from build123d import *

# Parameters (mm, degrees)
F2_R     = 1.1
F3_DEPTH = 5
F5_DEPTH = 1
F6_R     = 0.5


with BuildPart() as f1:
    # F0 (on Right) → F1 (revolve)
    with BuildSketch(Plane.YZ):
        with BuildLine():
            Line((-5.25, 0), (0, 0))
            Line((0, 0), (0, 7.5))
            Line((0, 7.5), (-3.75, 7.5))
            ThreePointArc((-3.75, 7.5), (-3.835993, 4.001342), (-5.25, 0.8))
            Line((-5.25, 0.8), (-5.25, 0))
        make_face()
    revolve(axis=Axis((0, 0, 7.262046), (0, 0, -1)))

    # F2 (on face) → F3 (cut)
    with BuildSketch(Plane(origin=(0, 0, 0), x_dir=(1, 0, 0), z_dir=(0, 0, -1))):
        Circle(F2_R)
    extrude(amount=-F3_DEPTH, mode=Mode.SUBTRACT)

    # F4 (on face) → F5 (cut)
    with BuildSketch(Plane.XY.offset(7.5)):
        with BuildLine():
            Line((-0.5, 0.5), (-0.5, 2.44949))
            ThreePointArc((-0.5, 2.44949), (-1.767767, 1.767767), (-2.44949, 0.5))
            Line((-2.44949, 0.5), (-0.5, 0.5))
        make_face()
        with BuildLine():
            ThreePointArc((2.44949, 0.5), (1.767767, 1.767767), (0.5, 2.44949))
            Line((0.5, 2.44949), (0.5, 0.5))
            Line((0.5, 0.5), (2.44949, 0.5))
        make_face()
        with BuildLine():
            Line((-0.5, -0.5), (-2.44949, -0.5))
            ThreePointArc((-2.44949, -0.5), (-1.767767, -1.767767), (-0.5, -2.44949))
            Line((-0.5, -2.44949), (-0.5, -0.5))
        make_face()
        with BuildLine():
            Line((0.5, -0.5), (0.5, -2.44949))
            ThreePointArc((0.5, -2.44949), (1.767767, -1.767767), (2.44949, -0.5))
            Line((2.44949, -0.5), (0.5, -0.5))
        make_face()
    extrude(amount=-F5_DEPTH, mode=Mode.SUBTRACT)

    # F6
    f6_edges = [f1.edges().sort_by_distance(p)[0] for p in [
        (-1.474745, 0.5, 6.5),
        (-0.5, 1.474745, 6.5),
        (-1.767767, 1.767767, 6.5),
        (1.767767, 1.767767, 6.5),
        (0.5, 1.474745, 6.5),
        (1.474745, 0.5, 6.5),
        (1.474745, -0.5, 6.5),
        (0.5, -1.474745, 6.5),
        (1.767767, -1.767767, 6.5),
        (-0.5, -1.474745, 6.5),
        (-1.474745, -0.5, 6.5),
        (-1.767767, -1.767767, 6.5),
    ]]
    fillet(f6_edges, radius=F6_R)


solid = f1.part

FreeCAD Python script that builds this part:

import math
import FreeCAD as App
import Part
import Sketcher


def edges_at(feature, points):
    """Names of the edges that pass closest to the given points."""
    edges = feature.Shape.Edges
    near = lambda p: min(range(len(edges)), key=lambda i: edges[i].distToShape(Part.Vertex(*p))[0])
    return sorted({f"Edge{near(p) + 1}" for p in points})

doc = App.newDocument("Part")
params = doc.addObject("Spreadsheet::Sheet", "Params")
for row, (alias, value) in enumerate([
    ("sketch1_height", "7.5 mm"),
    ("sketch1_height2", "0.8 mm"),
    ("sketch1_width", "5.25 mm"),
    ("sketch1_width2", "3.75 mm"),
    ("revolution_angle", "360 deg"),
    ("sketch2_diameter", "2.2 mm"),
    ("pocket1_length", "5 mm"),
    ("sketch3_radius", "2.500001 mm"),
    ("pocket2_length", "1 mm"),
    ("fillet_radius", "0.5 mm"),
], start=1):
    params.set(f"A{row}", alias)
    params.set(f"B{row}", "=" + value)
    params.setAlias(f"B{row}", alias)

body = doc.addObject("PartDesign::Body", "Body")

sketch1 = body.newObject("Sketcher::SketchObject", "Sketch")
sketch1.AttachmentSupport = (doc.getObject("YZ_Plane"), [""])
sketch1.MapMode = "FlatFace"
sketch1.addGeometry([
    Part.LineSegment(App.Vector(-5.2, 0, 0), App.Vector(0, 0, 0)),
    Part.LineSegment(App.Vector(0, 0, 0), App.Vector(0, 7.5, 0)),
    Part.LineSegment(App.Vector(0, 7.5, 0), App.Vector(-3.8, 7.5, 0)),
    Part.ArcOfCircle(Part.Circle(App.Vector(-12.6, 6, 0), App.Vector(0, 0, 1), 9), math.radians(-35), math.radians(10)),
    Part.LineSegment(App.Vector(-5.2, 0.8, 0), App.Vector(-5.2, 0, 0)),
], False)
sketch1.addConstraint([
    Sketcher.Constraint("Coincident", 0, 2, 1, 1),
    Sketcher.Constraint("Coincident", 1, 2, 2, 1),
    Sketcher.Constraint("Coincident", 2, 2, 3, 2),
    Sketcher.Constraint("Coincident", 3, 1, 4, 1),
    Sketcher.Constraint("Coincident", 4, 2, 0, 1),
    Sketcher.Constraint("Horizontal", 0),
    Sketcher.Constraint("Vertical", 1),
    Sketcher.Constraint("Horizontal", 2),
    Sketcher.Constraint("Vertical", 4),
    Sketcher.Constraint("Coincident", 0, 2, -1, 1),
    Sketcher.Constraint("DistanceY", 1, 1, 1, 2, 7.5),
    Sketcher.Constraint("DistanceY", 4, 2, 4, 1, 0.8),
    Sketcher.Constraint("DistanceX", 0, 1, 0, 2, 5.25),
    Sketcher.Constraint("DistanceX", 2, 2, 2, 1, 3.75),
    Sketcher.Constraint("Radius", 3, 9.000005),
])
sketch1.setExpression("Constraints[10]", "Params.sketch1_height")
sketch1.setExpression("Constraints[11]", "Params.sketch1_height2")
sketch1.setExpression("Constraints[12]", "Params.sketch1_width")
sketch1.setExpression("Constraints[13]", "Params.sketch1_width2")
revolution = body.newObject("PartDesign::Revolution", "Revolution")
revolution.Profile = sketch1
revolution.ReferenceAxis = (sketch1, ["V_Axis"])
revolution.setExpression("Angle", "Params.revolution_angle")

sketch2 = body.newObject("Sketcher::SketchObject", "Sketch001")
sketch2.AttachmentSupport = (doc.getObject("XY_Plane"), [""])
sketch2.MapMode = "FlatFace"
sketch2.addGeometry(Part.Circle(App.Vector(0, 0, 0), App.Vector(0, 0, 1), 1.1), False)
sketch2.addConstraint([
    Sketcher.Constraint("Coincident", 0, 3, -1, 1),
    Sketcher.Constraint("Diameter", 0, 2.2),
])
sketch2.setExpression("Constraints[1]", "Params.sketch2_diameter")
pocket1 = body.newObject("PartDesign::Pocket", "Pocket")
pocket1.Profile = sketch2
pocket1.setExpression("Length", "Params.pocket1_length")
pocket1.Reversed = True

sketch3 = body.newObject("Sketcher::SketchObject", "Sketch002")
sketch3.AttachmentSupport = (doc.getObject("XY_Plane"), [""])
sketch3.MapMode = "FlatFace"
sketch3.AttachmentOffset = App.Placement(App.Vector(0, 0, 7.5), App.Rotation())
sketch3.addGeometry([
    Part.LineSegment(App.Vector(-0.5, 0.5, 0), App.Vector(-0.5, 2.4, 0)),
    Part.ArcOfCircle(Part.Circle(App.Vector(0, 0, 0), App.Vector(0, 0, 1), 2.5), math.radians(102), math.radians(168)),
    Part.LineSegment(App.Vector(-2.4, 0.5, 0), App.Vector(-0.5, 0.5, 0)),
    Part.ArcOfCircle(Part.Circle(App.Vector(0, 0, 0), App.Vector(0, 0, 1), 2.5), math.radians(12), math.radians(78)),
    Part.LineSegment(App.Vector(0.5, 2.4, 0), App.Vector(0.5, 0.5, 0)),
    Part.LineSegment(App.Vector(0.5, 0.5, 0), App.Vector(2.4, 0.5, 0)),
    Part.LineSegment(App.Vector(-0.5, -0.5, 0), App.Vector(-2.4, -0.5, 0)),
    Part.ArcOfCircle(Part.Circle(App.Vector(0, 0, 0), App.Vector(0, 0, 1), 2.5), math.radians(-168), math.radians(-102)),
    Part.LineSegment(App.Vector(-0.5, -2.4, 0), App.Vector(-0.5, -0.5, 0)),
    Part.LineSegment(App.Vector(0.5, -0.5, 0), App.Vector(0.5, -2.4, 0)),
    Part.ArcOfCircle(Part.Circle(App.Vector(0, 0, 0), App.Vector(0, 0, 1), 2.5), math.radians(-78), math.radians(-12)),
    Part.LineSegment(App.Vector(2.4, -0.5, 0), App.Vector(0.5, -0.5, 0)),
], False)
sketch3.addConstraint([
    Sketcher.Constraint("Coincident", 0, 2, 1, 1),
    Sketcher.Constraint("Coincident", 1, 2, 2, 1),
    Sketcher.Constraint("Coincident", 2, 2, 0, 1),
    Sketcher.Constraint("Coincident", 3, 2, 4, 1),
    Sketcher.Constraint("Coincident", 4, 2, 5, 1),
    Sketcher.Constraint("Coincident", 5, 2, 3, 1),
    Sketcher.Constraint("Coincident", 6, 2, 7, 1),
    Sketcher.Constraint("Coincident", 7, 2, 8, 1),
    Sketcher.Constraint("Coincident", 8, 2, 6, 1),
    Sketcher.Constraint("Coincident", 9, 2, 10, 1),
    Sketcher.Constraint("Coincident", 10, 2, 11, 1),
    Sketcher.Constraint("Coincident", 11, 2, 9, 1),
    Sketcher.Constraint("Vertical", 0),
    Sketcher.Constraint("Horizontal", 2),
    Sketcher.Constraint("Vertical", 4),
    Sketcher.Constraint("Horizontal", 5),
    Sketcher.Constraint("Horizontal", 6),
    Sketcher.Constraint("Vertical", 8),
    Sketcher.Constraint("Vertical", 9),
    Sketcher.Constraint("Horizontal", 11),
    Sketcher.Constraint("Coincident", 1, 3, -1, 1),
    Sketcher.Constraint("Coincident", 3, 3, -1, 1),
    Sketcher.Constraint("Coincident", 7, 3, -1, 1),
    Sketcher.Constraint("Coincident", 10, 3, -1, 1),
    Sketcher.Constraint("Equal", 1, 3),
    Sketcher.Constraint("Equal", 3, 7),
    Sketcher.Constraint("Equal", 7, 10),
    Sketcher.Constraint("Symmetric", 4, 2, 8, 2, -1, 1),
    Sketcher.Constraint("Symmetric", 2, 2, 11, 2, -1, 1),
    Sketcher.Constraint("Symmetric", 2, 2, 4, 2, -2),
    Sketcher.Constraint("Equal", 11, 0),
    Sketcher.Constraint("Radius", 1, 2.500001),
    Sketcher.Constraint("DistanceX", 0, 2, 3, 2, 1.0),
])
sketch3.setExpression("Constraints[31]", "Params.sketch3_radius")
pocket2 = body.newObject("PartDesign::Pocket", "Pocket001")
pocket2.Profile = sketch3
pocket2.setExpression("Length", "Params.pocket2_length")
doc.recompute()

fillet = body.newObject("PartDesign::Fillet", "Fillet")
fillet.Base = (pocket2, edges_at(pocket2, [
    (-1.475, 0.5, 6.5),
    (-0.5, 1.475, 6.5),
    (-1.768, 1.768, 6.5),
    (1.768, 1.768, 6.5),
    (0.5, 1.475, 6.5),
    (1.475, 0.5, 6.5),
    (1.475, -0.5, 6.5),
    (0.5, -1.475, 6.5),
    (1.768, -1.768, 6.5),
    (-0.5, -1.475, 6.5),
    (-1.475, -0.5, 6.5),
    (-1.768, -1.768, 6.5),
]))
fillet.setExpression("Radius", "Params.fillet_radius")

doc.recompute()
